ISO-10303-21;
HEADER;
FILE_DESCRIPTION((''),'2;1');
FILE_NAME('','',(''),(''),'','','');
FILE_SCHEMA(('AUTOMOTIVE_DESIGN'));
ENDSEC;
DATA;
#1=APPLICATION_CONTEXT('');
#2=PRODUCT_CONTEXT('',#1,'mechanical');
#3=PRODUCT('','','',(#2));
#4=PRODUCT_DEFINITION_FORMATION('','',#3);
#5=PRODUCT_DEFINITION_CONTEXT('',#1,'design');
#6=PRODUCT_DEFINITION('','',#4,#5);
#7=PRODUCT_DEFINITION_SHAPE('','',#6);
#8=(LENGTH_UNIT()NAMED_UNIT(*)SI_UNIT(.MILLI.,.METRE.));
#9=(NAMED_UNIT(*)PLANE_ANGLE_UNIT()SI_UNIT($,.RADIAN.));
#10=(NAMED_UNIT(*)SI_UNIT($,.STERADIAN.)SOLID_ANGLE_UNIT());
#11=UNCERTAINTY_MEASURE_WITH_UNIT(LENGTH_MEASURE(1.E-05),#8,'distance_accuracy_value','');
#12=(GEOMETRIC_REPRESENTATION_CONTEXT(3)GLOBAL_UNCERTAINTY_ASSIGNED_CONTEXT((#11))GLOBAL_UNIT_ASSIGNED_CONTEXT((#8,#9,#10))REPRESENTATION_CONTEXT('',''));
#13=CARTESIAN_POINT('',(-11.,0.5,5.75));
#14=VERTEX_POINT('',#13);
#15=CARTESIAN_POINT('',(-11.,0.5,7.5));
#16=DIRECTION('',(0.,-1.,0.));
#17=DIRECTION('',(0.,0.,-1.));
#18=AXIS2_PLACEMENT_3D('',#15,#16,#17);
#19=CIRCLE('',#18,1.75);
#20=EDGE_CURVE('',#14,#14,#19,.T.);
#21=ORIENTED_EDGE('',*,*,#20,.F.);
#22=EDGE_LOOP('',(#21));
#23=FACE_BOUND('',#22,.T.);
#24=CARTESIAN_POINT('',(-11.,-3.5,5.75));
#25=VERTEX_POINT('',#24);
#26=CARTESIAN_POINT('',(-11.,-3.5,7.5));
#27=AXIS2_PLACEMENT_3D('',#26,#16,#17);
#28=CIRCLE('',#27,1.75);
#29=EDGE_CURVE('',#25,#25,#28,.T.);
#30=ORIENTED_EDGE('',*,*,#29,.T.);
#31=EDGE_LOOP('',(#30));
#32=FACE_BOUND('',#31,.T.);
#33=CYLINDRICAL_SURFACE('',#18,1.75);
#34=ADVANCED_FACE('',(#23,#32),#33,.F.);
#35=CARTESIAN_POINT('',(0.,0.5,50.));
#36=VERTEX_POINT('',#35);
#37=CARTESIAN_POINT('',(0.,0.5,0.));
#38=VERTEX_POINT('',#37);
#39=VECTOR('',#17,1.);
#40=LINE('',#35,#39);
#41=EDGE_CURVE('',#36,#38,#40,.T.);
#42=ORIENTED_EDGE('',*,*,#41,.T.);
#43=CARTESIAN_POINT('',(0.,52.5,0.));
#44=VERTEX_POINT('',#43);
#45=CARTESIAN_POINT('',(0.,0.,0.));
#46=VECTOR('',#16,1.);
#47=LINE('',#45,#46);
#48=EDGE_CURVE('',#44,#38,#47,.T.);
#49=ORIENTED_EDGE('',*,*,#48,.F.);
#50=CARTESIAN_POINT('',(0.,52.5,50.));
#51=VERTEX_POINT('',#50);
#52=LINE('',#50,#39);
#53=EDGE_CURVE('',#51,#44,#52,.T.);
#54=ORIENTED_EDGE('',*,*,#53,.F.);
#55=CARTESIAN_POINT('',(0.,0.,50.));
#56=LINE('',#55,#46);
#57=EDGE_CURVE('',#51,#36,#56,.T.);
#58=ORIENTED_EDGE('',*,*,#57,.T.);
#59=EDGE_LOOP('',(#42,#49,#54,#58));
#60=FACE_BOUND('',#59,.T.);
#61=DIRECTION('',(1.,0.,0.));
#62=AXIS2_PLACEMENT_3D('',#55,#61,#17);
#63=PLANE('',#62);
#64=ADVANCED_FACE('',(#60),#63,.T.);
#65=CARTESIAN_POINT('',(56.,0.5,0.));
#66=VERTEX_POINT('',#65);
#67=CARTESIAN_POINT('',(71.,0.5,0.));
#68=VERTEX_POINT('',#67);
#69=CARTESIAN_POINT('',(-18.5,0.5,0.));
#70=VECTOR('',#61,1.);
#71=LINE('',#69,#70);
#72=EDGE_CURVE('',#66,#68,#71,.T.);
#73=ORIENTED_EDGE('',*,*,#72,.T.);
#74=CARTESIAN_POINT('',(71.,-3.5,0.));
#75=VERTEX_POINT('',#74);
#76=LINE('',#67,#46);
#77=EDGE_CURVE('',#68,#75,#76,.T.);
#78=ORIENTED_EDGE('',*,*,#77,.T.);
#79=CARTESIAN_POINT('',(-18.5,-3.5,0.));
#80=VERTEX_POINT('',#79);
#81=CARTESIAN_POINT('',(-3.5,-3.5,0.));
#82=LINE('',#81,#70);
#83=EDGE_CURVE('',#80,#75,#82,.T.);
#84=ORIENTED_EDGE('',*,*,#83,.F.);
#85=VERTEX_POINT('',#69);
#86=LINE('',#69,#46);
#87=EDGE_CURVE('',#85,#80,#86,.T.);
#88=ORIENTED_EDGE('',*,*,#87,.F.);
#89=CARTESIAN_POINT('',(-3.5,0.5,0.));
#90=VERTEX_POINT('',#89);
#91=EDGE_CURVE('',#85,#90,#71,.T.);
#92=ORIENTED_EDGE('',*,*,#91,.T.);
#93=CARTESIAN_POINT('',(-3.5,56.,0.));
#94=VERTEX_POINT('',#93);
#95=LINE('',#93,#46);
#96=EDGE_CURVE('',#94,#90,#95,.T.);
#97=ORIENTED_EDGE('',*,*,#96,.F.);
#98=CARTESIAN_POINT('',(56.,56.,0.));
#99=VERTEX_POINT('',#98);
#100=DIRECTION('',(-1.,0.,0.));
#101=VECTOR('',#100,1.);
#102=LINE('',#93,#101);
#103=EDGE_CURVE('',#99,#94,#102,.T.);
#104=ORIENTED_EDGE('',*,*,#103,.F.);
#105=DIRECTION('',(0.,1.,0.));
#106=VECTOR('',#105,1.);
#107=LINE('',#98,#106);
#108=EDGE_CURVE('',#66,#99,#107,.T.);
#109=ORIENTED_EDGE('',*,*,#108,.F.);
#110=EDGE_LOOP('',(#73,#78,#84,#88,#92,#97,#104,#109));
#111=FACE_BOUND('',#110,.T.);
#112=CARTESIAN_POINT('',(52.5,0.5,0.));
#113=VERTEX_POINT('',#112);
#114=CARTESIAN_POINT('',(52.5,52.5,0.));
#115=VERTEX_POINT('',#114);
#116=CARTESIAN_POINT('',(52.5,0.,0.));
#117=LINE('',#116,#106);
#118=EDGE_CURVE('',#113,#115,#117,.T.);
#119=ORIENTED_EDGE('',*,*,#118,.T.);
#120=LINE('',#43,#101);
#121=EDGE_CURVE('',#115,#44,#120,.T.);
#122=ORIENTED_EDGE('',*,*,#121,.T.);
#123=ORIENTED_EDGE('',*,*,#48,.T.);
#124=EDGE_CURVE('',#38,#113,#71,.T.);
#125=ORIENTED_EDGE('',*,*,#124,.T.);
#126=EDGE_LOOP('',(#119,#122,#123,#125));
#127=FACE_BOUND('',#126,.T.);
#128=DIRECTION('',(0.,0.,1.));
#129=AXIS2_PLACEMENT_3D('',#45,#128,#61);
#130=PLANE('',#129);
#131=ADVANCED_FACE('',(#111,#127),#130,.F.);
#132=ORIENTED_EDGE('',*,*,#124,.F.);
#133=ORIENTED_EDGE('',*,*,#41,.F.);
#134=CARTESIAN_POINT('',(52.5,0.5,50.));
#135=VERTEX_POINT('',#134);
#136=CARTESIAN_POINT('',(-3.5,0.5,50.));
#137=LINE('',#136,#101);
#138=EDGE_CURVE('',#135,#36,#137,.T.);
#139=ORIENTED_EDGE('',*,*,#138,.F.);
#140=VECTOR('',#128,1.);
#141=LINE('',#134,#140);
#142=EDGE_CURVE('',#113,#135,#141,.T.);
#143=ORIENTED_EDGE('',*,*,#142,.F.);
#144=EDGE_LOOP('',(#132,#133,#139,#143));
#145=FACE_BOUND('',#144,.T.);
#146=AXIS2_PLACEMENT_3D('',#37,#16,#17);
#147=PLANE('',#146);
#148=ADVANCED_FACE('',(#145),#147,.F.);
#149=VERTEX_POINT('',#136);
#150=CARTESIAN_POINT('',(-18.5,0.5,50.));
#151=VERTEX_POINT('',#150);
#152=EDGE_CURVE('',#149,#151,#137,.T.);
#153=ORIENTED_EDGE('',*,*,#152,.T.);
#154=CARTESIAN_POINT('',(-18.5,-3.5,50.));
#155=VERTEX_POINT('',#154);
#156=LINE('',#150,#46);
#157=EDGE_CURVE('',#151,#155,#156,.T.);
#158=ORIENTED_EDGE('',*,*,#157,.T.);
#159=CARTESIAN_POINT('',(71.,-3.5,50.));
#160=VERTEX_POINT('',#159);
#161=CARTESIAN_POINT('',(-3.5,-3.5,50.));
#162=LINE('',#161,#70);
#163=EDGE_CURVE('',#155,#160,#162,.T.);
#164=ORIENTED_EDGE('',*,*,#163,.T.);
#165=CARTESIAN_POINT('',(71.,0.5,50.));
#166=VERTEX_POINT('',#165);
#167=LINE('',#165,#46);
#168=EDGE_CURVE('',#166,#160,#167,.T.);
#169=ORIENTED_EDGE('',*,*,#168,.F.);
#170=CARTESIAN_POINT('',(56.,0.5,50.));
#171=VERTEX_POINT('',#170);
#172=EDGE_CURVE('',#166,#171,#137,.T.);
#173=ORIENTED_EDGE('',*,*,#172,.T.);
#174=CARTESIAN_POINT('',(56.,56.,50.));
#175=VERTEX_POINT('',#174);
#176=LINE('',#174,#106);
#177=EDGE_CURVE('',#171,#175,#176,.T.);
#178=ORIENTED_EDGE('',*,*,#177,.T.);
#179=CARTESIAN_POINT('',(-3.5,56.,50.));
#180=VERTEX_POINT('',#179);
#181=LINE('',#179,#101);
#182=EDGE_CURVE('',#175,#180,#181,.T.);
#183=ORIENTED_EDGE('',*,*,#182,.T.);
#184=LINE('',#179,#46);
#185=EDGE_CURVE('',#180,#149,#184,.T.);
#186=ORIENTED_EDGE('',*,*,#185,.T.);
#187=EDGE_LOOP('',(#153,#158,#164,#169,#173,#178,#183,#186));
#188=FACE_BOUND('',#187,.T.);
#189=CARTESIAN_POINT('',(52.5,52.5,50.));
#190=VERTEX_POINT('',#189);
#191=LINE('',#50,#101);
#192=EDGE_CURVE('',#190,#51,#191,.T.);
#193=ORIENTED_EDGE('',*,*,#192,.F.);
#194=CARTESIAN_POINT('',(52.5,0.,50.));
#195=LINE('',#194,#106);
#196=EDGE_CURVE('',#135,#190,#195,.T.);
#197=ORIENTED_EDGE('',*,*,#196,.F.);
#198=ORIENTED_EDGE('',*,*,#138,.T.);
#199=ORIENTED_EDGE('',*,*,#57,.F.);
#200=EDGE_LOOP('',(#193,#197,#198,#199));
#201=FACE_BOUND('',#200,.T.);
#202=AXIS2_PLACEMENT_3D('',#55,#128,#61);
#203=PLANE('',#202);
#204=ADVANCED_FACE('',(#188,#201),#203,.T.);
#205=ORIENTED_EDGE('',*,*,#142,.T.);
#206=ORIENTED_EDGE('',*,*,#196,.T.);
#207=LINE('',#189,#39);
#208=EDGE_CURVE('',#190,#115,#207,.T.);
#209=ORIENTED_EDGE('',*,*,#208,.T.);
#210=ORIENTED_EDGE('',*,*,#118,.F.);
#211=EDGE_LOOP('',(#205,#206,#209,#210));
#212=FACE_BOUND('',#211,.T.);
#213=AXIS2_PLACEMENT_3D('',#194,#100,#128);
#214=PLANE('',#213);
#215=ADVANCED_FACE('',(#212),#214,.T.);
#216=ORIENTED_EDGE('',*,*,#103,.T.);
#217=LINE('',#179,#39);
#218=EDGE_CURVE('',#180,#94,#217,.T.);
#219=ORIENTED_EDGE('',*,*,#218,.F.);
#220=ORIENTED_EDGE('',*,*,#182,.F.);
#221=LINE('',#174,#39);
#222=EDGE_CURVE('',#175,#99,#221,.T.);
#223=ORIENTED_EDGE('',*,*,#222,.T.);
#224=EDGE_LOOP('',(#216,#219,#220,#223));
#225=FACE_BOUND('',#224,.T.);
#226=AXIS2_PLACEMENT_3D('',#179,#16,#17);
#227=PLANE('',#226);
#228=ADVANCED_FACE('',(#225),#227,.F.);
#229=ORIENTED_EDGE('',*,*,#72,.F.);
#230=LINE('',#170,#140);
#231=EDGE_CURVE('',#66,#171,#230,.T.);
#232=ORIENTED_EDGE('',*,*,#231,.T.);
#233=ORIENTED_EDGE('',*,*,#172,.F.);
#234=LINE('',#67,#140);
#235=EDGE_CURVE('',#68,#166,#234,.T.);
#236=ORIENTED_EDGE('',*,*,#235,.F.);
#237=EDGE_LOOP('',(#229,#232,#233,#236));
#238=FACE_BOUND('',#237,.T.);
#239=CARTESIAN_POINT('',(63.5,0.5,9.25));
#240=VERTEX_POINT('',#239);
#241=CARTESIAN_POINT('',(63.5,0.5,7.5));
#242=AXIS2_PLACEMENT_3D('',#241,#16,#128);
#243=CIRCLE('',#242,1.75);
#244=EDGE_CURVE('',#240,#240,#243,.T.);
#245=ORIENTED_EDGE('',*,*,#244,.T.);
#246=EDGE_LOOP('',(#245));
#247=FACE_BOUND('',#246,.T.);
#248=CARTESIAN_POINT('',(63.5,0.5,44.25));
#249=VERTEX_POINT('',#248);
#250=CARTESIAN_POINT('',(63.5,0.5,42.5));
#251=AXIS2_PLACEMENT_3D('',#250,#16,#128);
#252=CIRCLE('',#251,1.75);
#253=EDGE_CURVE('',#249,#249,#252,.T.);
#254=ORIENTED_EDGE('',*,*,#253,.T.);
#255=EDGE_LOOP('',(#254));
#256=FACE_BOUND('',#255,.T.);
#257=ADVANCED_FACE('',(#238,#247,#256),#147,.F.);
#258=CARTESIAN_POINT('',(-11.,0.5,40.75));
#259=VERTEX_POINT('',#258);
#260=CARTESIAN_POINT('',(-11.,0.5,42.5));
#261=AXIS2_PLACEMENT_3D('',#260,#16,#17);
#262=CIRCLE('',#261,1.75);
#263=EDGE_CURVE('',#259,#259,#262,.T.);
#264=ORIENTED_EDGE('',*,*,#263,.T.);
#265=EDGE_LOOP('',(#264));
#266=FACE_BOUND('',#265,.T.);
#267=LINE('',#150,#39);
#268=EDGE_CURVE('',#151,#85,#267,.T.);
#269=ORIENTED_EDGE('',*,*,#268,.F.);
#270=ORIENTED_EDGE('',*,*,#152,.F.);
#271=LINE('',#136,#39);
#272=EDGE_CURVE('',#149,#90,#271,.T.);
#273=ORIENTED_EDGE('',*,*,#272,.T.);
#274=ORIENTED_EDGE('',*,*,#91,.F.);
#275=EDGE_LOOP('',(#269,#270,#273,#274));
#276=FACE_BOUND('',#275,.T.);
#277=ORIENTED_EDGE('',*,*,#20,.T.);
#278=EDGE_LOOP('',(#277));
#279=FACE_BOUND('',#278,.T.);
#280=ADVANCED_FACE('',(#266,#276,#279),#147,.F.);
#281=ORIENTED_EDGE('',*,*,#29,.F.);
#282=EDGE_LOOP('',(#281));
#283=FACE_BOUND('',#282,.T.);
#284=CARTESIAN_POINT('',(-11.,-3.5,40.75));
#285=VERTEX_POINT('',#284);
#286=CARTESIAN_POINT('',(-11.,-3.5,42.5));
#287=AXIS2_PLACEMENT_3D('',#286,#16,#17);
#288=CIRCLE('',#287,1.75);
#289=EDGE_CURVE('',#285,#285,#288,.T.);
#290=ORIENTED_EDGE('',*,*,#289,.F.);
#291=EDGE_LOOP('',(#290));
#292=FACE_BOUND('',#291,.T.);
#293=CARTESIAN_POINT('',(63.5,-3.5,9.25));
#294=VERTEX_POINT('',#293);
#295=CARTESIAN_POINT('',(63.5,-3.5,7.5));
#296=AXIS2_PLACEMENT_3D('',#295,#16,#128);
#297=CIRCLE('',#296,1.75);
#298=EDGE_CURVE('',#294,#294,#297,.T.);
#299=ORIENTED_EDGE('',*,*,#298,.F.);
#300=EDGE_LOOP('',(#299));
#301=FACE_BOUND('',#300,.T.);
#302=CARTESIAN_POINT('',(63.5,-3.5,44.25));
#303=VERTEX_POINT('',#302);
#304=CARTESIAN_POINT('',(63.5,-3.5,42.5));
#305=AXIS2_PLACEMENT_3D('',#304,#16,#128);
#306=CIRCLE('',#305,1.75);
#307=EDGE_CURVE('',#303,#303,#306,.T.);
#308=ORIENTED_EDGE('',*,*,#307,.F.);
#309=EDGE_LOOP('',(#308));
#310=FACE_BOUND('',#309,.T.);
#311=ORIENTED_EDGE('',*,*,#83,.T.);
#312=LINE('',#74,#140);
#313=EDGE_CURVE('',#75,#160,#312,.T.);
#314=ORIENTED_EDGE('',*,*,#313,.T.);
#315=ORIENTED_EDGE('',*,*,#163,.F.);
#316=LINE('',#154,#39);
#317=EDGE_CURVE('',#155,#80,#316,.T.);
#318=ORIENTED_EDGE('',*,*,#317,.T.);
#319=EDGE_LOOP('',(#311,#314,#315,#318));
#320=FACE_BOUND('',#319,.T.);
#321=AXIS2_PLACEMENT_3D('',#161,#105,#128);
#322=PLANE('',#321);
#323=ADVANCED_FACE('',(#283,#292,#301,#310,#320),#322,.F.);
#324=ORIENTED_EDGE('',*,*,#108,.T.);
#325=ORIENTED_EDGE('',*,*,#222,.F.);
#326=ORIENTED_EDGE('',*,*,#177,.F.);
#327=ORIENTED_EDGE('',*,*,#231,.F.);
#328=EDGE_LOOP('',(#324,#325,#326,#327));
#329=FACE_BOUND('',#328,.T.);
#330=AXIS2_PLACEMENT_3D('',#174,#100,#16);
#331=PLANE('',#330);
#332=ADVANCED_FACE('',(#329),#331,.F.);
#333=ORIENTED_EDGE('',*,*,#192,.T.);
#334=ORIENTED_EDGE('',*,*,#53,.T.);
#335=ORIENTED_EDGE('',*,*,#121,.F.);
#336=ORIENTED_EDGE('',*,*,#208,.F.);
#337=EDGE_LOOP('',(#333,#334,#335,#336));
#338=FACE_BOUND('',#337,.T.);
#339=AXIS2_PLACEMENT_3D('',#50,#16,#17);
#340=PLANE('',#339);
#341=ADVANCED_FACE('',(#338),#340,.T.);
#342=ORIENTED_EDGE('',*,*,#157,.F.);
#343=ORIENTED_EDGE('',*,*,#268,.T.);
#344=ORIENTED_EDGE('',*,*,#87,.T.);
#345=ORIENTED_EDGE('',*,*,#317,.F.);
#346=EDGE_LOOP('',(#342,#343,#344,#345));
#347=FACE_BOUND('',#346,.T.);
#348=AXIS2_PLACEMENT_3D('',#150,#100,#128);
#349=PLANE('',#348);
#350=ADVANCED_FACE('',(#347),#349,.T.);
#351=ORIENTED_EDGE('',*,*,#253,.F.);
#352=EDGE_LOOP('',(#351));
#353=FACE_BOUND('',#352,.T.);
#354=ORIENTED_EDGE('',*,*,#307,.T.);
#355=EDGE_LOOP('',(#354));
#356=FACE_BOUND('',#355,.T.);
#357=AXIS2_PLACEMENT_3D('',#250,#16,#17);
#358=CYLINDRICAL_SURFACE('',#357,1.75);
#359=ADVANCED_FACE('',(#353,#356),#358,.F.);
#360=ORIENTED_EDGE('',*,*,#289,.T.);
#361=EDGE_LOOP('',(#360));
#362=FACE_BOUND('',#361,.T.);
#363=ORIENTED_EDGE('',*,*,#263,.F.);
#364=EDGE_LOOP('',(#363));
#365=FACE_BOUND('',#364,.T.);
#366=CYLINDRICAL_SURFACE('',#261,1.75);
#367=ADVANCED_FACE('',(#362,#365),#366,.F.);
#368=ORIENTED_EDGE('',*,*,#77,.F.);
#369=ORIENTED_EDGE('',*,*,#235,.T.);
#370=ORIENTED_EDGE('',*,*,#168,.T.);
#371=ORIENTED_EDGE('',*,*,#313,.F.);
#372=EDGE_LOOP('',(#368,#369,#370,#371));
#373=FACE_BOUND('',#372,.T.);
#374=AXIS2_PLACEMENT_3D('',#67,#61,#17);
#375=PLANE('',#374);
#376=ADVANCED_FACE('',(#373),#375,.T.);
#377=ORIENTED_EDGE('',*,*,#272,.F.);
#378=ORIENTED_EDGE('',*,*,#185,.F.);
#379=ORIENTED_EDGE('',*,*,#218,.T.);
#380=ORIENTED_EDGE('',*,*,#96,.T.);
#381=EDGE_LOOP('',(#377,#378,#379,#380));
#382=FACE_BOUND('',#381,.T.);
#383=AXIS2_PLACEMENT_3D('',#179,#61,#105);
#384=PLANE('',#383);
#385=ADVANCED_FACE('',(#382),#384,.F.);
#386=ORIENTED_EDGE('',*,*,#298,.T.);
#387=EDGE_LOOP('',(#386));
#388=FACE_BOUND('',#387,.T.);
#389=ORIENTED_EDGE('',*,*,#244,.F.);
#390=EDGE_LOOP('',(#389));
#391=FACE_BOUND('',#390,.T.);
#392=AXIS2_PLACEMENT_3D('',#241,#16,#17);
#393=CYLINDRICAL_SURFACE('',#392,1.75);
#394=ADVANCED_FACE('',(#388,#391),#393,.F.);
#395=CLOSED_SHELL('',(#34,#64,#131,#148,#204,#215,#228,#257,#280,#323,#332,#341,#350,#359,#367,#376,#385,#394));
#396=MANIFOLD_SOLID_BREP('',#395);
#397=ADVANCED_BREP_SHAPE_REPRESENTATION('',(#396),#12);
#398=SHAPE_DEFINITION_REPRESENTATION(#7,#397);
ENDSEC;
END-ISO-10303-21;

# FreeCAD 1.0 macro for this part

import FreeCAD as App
import Part
import Sketcher

V = App.Vector

doc = App.newDocument("Part")
body = doc.addObject("PartDesign::Body", "Body")

# Sketch on XY plane
sketch1 = doc.addObject("Sketcher::SketchObject", "Sketch")
body.addObject(sketch1)
sketch1.AttachmentSupport = (doc.XY_Plane, [""])
sketch1.MapMode = "FlatFace"
sketch1.addGeometry(Part.LineSegment(V(-4, 56, 0), V(-4, -4, 0)), False)
sketch1.addGeometry(Part.LineSegment(V(-4, -4, 0), V(56, -4, 0)), False)
sketch1.addGeometry(Part.LineSegment(V(56, -4, 0), V(56, 56, 0)), False)
sketch1.addGeometry(Part.LineSegment(V(56, 56, 0), V(-4, 56, 0)), False)
sketch1.addGeometry(Part.LineSegment(V(52, 0, 0), V(0, 0, 0)), False)
sketch1.addGeometry(Part.LineSegment(V(0, 0, 0), V(0, 52, 0)), False)
sketch1.addGeometry(Part.LineSegment(V(0, 52, 0), V(52, 52, 0)), False)
sketch1.addGeometry(Part.LineSegment(V(52, 52, 0), V(52, 0, 0)), False)
sketch1.addConstraint(Sketcher.Constraint("Coincident", 0, 2, 1, 1))
sketch1.addConstraint(Sketcher.Constraint("Coincident", 1, 2, 2, 1))
sketch1.addConstraint(Sketcher.Constraint("Coincident", 2, 2, 3, 1))
sketch1.addConstraint(Sketcher.Constraint("Coincident", 3, 2, 0, 1))
sketch1.addConstraint(Sketcher.Constraint("Coincident", 4, 2, 5, 1))
sketch1.addConstraint(Sketcher.Constraint("Coincident", 5, 2, 6, 1))
sketch1.addConstraint(Sketcher.Constraint("Coincident", 6, 2, 7, 1))
sketch1.addConstraint(Sketcher.Constraint("Coincident", 7, 2, 4, 1))
sketch1.addConstraint(Sketcher.Constraint("Vertical", 0))
sketch1.addConstraint(Sketcher.Constraint("Horizontal", 1))
sketch1.addConstraint(Sketcher.Constraint("Vertical", 2))
sketch1.addConstraint(Sketcher.Constraint("Horizontal", 3))
sketch1.addConstraint(Sketcher.Constraint("Horizontal", 4))
sketch1.addConstraint(Sketcher.Constraint("Vertical", 5))
sketch1.addConstraint(Sketcher.Constraint("Horizontal", 6))
sketch1.addConstraint(Sketcher.Constraint("Vertical", 7))
sketch1.addConstraint(Sketcher.Constraint("Coincident", 4, 2, -1, 1))
sketch1.addConstraint(Sketcher.Constraint("Equal", 3, 0))
sketch1.addConstraint(Sketcher.Constraint("Equal", 6, 5))
sketch1.addConstraint(Sketcher.Constraint("DistanceX", 1, 1, 1, 2, 59.5))
sketch1.addConstraint(Sketcher.Constraint("DistanceX", 4, 2, 4, 1, 52.5))
sketch1.addConstraint(Sketcher.Constraint("DistanceX", -1, 1, 1, 2, 56.0))
sketch1.addConstraint(Sketcher.Constraint("DistanceY", -1, 1, 2, 2, 56.0))
pad1 = doc.addObject("PartDesign::Pad", "Pad")
body.addObject(pad1)
pad1.Profile = sketch1
pad1.Length = 50

# Sketch on XZ plane
sketch2 = doc.addObject("Sketcher::SketchObject", "Sketch001")
body.addObject(sketch2)
sketch2.AttachmentSupport = (doc.XZ_Plane, [""])
sketch2.MapMode = "FlatFace"
sketch2.AttachmentOffset = App.Placement(V(0, 0, 3.5), App.Rotation())
sketch2.addGeometry(Part.LineSegment(V(-18.5, 50, 0), V(-18.5, 0, 0)), False)
sketch2.addGeometry(Part.LineSegment(V(-18.5, 0, 0), V(71, 0, 0)), False)
sketch2.addGeometry(Part.LineSegment(V(71, 0, 0), V(71, 50, 0)), False)
sketch2.addGeometry(Part.LineSegment(V(71, 50, 0), V(-18.5, 50, 0)), False)
sketch2.addGeometry(Part.Circle(V(-11, 7.5, 0), V(0, 0, 1), 1.8), False)
sketch2.addGeometry(Part.Circle(V(63.5, 7.5, 0), V(0, 0, 1), 1.8), False)
sketch2.addGeometry(Part.Circle(V(-11, 42.5, 0), V(0, 0, 1), 1.8), False)
sketch2.addGeometry(Part.Circle(V(63.5, 42.5, 0), V(0, 0, 1), 1.8), False)
sketch2.addConstraint(Sketcher.Constraint("Coincident", 0, 2, 1, 1))
sketch2.addConstraint(Sketcher.Constraint("Coincident", 1, 2, 2, 1))
sketch2.addConstraint(Sketcher.Constraint("Coincident", 2, 2, 3, 1))
sketch2.addConstraint(Sketcher.Constraint("Coincident", 3, 2, 0, 1))
sketch2.addConstraint(Sketcher.Constraint("Vertical", 0))
sketch2.addConstraint(Sketcher.Constraint("Horizontal", 1))
sketch2.addConstraint(Sketcher.Constraint("Vertical", 2))
sketch2.addConstraint(Sketcher.Constraint("Horizontal", 3))
sketch2.addConstraint(Sketcher.Constraint("Equal", 4, 5))
sketch2.addConstraint(Sketcher.Constraint("Equal", 5, 6))
sketch2.addConstraint(Sketcher.Constraint("Equal", 6, 7))
sketch2.addConstraint(Sketcher.Constraint("PointOnObject", 0, 2, -1))
sketch2.addConstraint(Sketcher.Constraint("Horizontal", 4, 3, 5, 3))
sketch2.addConstraint(Sketcher.Constraint("Horizontal", 6, 3, 7, 3))
sketch2.addConstraint(Sketcher.Constraint("Vertical", 4, 3, 6, 3))
sketch2.addConstraint(Sketcher.Constraint("Vertical", 5, 3, 7, 3))
sketch2.addConstraint(Sketcher.Constraint("Diameter", 4, 3.5))
sketch2.addConstraint(Sketcher.Constraint("DistanceY", 0, 2, 0, 1, 50.0))
sketch2.addConstraint(Sketcher.Constraint("DistanceX", 1, 1, 1, 2, 89.5))
sketch2.addConstraint(Sketcher.Constraint("DistanceX", 4, 3, -1, 1, 11.0))
sketch2.addConstraint(Sketcher.Constraint("DistanceX", -1, 1, 1, 2, 71.0))
sketch2.addConstraint(Sketcher.Constraint("DistanceY", 4, 3, 6, 3, 35.0))
sketch2.addConstraint(Sketcher.Constraint("DistanceX", 0, 2, 5, 3, 82.0))
sketch2.addConstraint(Sketcher.Constraint("DistanceY", -1, 1, 4, 3, 7.5))
pad2 = doc.addObject("PartDesign::Pad", "Pad001")
body.addObject(pad2)
pad2.Profile = sketch2
pad2.Length = 4
pad2.Reversed = True

doc.recompute()
